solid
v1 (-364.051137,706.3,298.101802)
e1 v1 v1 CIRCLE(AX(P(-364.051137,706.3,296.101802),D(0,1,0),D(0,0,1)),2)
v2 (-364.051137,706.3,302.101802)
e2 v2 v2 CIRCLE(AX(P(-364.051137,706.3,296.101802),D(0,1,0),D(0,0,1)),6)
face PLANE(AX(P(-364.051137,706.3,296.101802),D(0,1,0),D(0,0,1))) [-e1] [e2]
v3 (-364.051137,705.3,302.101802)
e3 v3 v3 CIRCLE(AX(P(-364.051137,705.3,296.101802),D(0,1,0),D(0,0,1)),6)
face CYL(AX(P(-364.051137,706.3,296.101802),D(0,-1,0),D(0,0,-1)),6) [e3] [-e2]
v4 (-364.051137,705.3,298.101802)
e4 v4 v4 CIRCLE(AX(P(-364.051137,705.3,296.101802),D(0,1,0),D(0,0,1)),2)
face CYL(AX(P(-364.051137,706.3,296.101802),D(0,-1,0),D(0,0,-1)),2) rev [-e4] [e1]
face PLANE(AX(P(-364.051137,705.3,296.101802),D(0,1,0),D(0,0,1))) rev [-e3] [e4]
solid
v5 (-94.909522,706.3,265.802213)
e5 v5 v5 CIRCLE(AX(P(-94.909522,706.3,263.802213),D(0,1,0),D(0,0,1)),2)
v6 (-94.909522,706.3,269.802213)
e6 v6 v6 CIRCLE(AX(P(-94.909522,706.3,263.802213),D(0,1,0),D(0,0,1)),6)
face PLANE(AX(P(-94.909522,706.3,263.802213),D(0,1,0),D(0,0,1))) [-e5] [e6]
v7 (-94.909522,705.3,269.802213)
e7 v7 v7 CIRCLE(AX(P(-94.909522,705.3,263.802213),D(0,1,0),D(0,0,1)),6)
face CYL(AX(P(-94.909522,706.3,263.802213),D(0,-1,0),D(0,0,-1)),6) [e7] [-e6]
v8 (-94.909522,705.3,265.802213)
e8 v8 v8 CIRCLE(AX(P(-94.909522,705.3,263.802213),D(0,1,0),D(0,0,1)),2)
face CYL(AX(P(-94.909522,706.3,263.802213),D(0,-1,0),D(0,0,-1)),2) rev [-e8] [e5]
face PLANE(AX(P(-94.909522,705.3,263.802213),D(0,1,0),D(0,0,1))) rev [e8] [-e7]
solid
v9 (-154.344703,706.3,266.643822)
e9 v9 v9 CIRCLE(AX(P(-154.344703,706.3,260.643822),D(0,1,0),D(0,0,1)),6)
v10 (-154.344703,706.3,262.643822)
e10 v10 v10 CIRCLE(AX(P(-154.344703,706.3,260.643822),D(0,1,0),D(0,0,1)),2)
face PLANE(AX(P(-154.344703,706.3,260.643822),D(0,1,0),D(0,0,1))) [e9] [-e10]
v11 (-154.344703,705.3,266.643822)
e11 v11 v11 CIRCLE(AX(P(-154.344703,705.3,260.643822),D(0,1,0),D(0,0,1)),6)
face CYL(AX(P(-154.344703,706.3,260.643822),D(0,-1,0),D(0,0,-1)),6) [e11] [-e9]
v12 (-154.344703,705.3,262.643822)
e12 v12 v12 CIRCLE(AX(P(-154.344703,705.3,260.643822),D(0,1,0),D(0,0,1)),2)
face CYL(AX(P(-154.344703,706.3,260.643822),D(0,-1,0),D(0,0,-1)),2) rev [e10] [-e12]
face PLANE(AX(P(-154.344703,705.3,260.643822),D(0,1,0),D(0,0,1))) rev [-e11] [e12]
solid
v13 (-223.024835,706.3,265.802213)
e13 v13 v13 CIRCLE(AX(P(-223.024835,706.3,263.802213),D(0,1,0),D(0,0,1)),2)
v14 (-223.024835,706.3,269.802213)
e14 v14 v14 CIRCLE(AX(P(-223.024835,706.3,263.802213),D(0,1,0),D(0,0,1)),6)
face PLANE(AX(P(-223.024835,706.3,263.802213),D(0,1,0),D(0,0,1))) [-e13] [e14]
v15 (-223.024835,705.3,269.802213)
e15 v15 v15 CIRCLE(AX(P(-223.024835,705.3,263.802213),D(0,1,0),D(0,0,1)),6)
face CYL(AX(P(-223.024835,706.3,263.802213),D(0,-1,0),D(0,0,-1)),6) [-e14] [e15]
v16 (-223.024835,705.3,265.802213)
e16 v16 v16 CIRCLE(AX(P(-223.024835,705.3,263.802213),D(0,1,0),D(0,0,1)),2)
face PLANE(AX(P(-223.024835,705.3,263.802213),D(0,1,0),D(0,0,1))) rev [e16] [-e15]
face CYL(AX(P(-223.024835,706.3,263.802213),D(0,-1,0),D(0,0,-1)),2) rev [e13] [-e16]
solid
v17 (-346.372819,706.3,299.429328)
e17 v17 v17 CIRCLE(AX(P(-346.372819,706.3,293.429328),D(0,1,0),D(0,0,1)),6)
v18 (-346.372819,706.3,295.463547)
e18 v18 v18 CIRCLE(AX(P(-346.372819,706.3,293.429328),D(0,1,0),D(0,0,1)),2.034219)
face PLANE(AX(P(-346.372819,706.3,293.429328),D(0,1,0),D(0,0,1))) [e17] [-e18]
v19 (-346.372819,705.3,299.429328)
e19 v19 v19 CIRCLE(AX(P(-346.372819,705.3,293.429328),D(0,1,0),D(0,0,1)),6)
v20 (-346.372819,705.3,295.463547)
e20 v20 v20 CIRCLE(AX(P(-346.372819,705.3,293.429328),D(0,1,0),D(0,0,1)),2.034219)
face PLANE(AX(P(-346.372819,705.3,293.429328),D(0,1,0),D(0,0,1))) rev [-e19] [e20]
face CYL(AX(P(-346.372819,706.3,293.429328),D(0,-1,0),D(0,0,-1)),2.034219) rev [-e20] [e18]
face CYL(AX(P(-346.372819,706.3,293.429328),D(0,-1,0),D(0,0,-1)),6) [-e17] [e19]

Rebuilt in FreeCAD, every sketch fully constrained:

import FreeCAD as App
import Part
import Sketcher

V = App.Vector
Q = App.Units.Quantity

doc = App.newDocument("Part")
params = doc.addObject("Spreadsheet::Sheet", "Params")
for row, (alias, value) in enumerate([
    ("sketch1_diameter", "12 mm"),
    ("sketch1_diameter2", "4 mm"),
    ("pad1_length", "1 mm"),
    ("sketch2_diameter", "12 mm"),
    ("sketch2_diameter2", "4 mm"),
    ("pad2_length", "1 mm"),
    ("sketch3_diameter", "12 mm"),
    ("sketch3_diameter2", "4 mm"),
    ("pad3_length", "1 mm"),
    ("sketch4_diameter", "12 mm"),
    ("pad4_length", "1 mm"),
    ("sketch5_diameter", "12 mm"),
    ("sketch5_diameter2", "4 mm"),
    ("pad5_length", "1 mm"),
], start=1):
    params.set(f"A{row}", alias)
    params.set(f"B{row}", "=" + value)
    params.setAlias(f"B{row}", alias)

body = doc.addObject("PartDesign::Body", "Body")

sketch1 = body.newObject("Sketcher::SketchObject", "Sketch")
sketch1.AttachmentSupport = (doc.getObject("XZ_Plane"), [""])
sketch1.MapMode = "FlatFace"
sketch1.AttachmentOffset = App.Placement(V(0, 0, -705.3), App.Rotation())
sketch1.addGeometry([
    Part.Circle(V(-94.9, 263.8, 0), V(0, 0, 1), 6),
    Part.Circle(V(-94.9, 263.8, 0), V(0, 0, 1), 2),
], False)
sketch1.addConstraint([
    Sketcher.Constraint("Coincident", 1, 3, 0, 3),
    Sketcher.Constraint("Diameter", 0, Q("12 mm")),
    Sketcher.Constraint("Diameter", 1, Q("4 mm")),
    Sketcher.Constraint("DistanceX", 0, 3, -1, 1, Q("94.909522 mm")),
    Sketcher.Constraint("DistanceY", -1, 1, 0, 3, Q("263.802213 mm")),
])
sketch1.setExpression("Constraints[1]", "Params.sketch1_diameter")
sketch1.setExpression("Constraints[2]", "Params.sketch1_diameter2")
pad1 = body.newObject("PartDesign::Pad", "Pad")
pad1.Profile = sketch1
pad1.setExpression("Length", "Params.pad1_length")
pad1.Reversed = True
body2 = doc.addObject("PartDesign::Body", "Body001")

sketch2 = body2.newObject("Sketcher::SketchObject", "Sketch001")
sketch2.AttachmentSupport = (doc.getObject("XZ_Plane001"), [""])
sketch2.MapMode = "FlatFace"
sketch2.AttachmentOffset = App.Placement(V(0, 0, -705.3), App.Rotation())
sketch2.addGeometry([
    Part.Circle(V(-154.3, 260.6, 0), V(0, 0, 1), 6),
    Part.Circle(V(-154.3, 260.6, 0), V(0, 0, 1), 2),
], False)
sketch2.addConstraint([
    Sketcher.Constraint("Coincident", 1, 3, 0, 3),
    Sketcher.Constraint("Diameter", 0, Q("12 mm")),
    Sketcher.Constraint("Diameter", 1, Q("4 mm")),
    Sketcher.Constraint("DistanceY", -1, 1, 0, 3, Q("260.643822 mm")),
    Sketcher.Constraint("DistanceX", 0, 3, -1, 1, Q("154.344703 mm")),
])
sketch2.setExpression("Constraints[1]", "Params.sketch2_diameter")
sketch2.setExpression("Constraints[2]", "Params.sketch2_diameter2")
pad2 = body2.newObject("PartDesign::Pad", "Pad001")
pad2.Profile = sketch2
pad2.setExpression("Length", "Params.pad2_length")
pad2.Reversed = True
body3 = doc.addObject("PartDesign::Body", "Body002")

sketch3 = body3.newObject("Sketcher::SketchObject", "Sketch002")
sketch3.AttachmentSupport = (doc.getObject("XZ_Plane002"), [""])
sketch3.MapMode = "FlatFace"
sketch3.AttachmentOffset = App.Placement(V(0, 0, -705.3), App.Rotation())
sketch3.addGeometry([
    Part.Circle(V(-223, 263.8, 0), V(0, 0, 1), 6),
    Part.Circle(V(-223, 263.8, 0), V(0, 0, 1), 2),
], False)
sketch3.addConstraint([
    Sketcher.Constraint("Coincident", 1, 3, 0, 3),
    Sketcher.Constraint("Diameter", 0, Q("12 mm")),
    Sketcher.Constraint("Diameter", 1, Q("4 mm")),
    Sketcher.Constraint("DistanceX", 0, 3, -1, 1, Q("223.024835 mm")),
    Sketcher.Constraint("DistanceY", -1, 1, 0, 3, Q("263.802213 mm")),
])
sketch3.setExpression("Constraints[1]", "Params.sketch3_diameter")
sketch3.setExpression("Constraints[2]", "Params.sketch3_diameter2")
pad3 = body3.newObject("PartDesign::Pad", "Pad002")
pad3.Profile = sketch3
pad3.setExpression("Length", "Params.pad3_length")
pad3.Reversed = True
body4 = doc.addObject("PartDesign::Body", "Body003")

sketch4 = body4.newObject("Sketcher::SketchObject", "Sketch003")
sketch4.AttachmentSupport = (doc.getObject("XZ_Plane003"), [""])
sketch4.MapMode = "FlatFace"
sketch4.AttachmentOffset = App.Placement(V(0, 0, -705.3), App.Rotation())
sketch4.addGeometry([
    Part.Circle(V(-346.4, 293.4, 0), V(0, 0, 1), 6),
    Part.Circle(V(-346.4, 293.4, 0), V(0, 0, 1), 2),
], False)
sketch4.addConstraint([
    Sketcher.Constraint("Coincident", 1, 3, 0, 3),
    Sketcher.Constraint("Diameter", 0, Q("12 mm")),
    Sketcher.Constraint("Diameter", 1, Q("4.068439 mm")),
    Sketcher.Constraint("DistanceX", 0, 3, -1, 1, Q("346.372819 mm")),
    Sketcher.Constraint("DistanceY", -1, 1, 0, 3, Q("293.429328 mm")),
])
sketch4.setExpression("Constraints[1]", "Params.sketch4_diameter")
pad4 = body4.newObject("PartDesign::Pad", "Pad003")
pad4.Profile = sketch4
pad4.setExpression("Length", "Params.pad4_length")
pad4.Reversed = True
body5 = doc.addObject("PartDesign::Body", "Body004")

sketch5 = body5.newObject("Sketcher::SketchObject", "Sketch004")
sketch5.AttachmentSupport = (doc.getObject("XZ_Plane004"), [""])
sketch5.MapMode = "FlatFace"
sketch5.AttachmentOffset = App.Placement(V(0, 0, -705.3), App.Rotation())
sketch5.addGeometry([
    Part.Circle(V(-364.1, 296.1, 0), V(0, 0, 1), 6),
    Part.Circle(V(-364.1, 296.1, 0), V(0, 0, 1), 2),
], False)
sketch5.addConstraint([
    Sketcher.Constraint("Coincident", 1, 3, 0, 3),
    Sketcher.Constraint("Diameter", 0, Q("12 mm")),
    Sketcher.Constraint("Diameter", 1, Q("4 mm")),
    Sketcher.Constraint("DistanceY", -1, 1, 0, 3, Q("296.101802 mm")),
    Sketcher.Constraint("DistanceX", 0, 3, -1, 1, Q("364.051137 mm")),
])
sketch5.setExpression("Constraints[1]", "Params.sketch5_diameter")
sketch5.setExpression("Constraints[2]", "Params.sketch5_diameter2")
pad5 = body5.newObject("PartDesign::Pad", "Pad004")
pad5.Profile = sketch5
pad5.setExpression("Length", "Params.pad5_length")
pad5.Reversed = True

doc.recompute()
